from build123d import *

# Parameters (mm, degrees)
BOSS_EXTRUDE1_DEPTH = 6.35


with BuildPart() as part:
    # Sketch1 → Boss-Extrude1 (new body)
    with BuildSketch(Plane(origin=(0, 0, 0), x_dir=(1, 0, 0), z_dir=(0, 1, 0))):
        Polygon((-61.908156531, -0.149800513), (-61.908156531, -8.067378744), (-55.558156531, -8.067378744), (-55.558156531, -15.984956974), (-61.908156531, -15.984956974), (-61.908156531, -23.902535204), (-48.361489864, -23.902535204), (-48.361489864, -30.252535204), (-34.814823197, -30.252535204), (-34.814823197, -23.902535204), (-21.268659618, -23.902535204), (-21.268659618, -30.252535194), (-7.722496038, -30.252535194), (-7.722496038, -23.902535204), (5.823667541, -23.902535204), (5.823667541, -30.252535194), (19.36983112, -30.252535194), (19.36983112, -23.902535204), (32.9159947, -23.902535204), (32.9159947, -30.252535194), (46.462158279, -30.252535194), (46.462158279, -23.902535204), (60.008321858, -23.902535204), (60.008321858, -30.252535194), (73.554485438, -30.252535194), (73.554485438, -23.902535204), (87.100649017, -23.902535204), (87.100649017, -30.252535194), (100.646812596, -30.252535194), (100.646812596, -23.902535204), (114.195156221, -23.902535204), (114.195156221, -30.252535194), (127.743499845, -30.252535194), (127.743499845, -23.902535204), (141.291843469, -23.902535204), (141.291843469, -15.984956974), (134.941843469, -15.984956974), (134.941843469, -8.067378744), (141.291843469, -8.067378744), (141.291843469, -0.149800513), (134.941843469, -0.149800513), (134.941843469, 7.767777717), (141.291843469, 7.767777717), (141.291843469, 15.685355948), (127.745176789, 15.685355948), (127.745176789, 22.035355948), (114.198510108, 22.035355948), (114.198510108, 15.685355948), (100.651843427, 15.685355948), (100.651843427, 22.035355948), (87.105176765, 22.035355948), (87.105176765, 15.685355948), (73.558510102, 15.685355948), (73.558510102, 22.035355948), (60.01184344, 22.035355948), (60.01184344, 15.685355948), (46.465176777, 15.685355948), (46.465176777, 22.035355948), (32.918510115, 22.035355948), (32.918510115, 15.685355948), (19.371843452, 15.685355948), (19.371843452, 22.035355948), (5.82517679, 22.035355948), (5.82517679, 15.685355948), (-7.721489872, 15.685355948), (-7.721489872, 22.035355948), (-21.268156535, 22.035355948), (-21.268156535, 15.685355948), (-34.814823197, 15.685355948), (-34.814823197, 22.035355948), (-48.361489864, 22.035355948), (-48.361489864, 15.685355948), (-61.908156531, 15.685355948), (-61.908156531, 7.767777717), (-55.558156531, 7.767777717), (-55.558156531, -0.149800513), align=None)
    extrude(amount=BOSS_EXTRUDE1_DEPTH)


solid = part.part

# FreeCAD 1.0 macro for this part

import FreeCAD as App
import Part
import Sketcher

V = App.Vector
Q = App.Units.Quantity


def add_polygon(sketch, points):
    """Adds a closed chain of lines whose ends are joined by coincident constraints."""
    first, n = sketch.GeometryCount, len(points)
    for a, b in zip(points, points[1:] + points[:1]):
        sketch.addGeometry(Part.LineSegment(App.Vector(*a, 0), App.Vector(*b, 0)), False)
    for i in range(n):
        sketch.addConstraint(Sketcher.Constraint("Coincident", first + i, 2, first + (i + 1) % n, 1))

doc = App.newDocument("Part")
body = doc.addObject("PartDesign::Body", "Body")

# Sketch on XZ plane
sketch1 = doc.addObject("Sketcher::SketchObject", "Sketch")
body.addObject(sketch1)
sketch1.AttachmentSupport = (doc.XZ_Plane, [""])
sketch1.MapMode = "FlatFace"
add_polygon(sketch1, [(-62, 0), (-62, 8), (-56, 8), (-56, 16), (-62, 16), (-62, 24), (-48, 24), (-48, 30), (-35, 30), (-35, 24), (-21, 24), (-21, 30), (-8, 30), (-8, 24), (6, 24), (6, 30), (19, 30), (19, 24), (33, 24), (33, 30), (46, 30), (46, 24), (60, 24), (60, 30), (74, 30), (74, 24), (87, 24), (87, 30), (101, 30), (101, 24), (114, 24), (114, 30), (128, 30), (128, 24), (141, 24), (141, 16), (135, 16), (135, 8), (141, 8), (141, 0), (135, 0), (135, -8), (141, -8), (141, -16), (128, -16), (128, -22), (114, -22), (114, -16), (101, -16), (101, -22), (87, -22), (87, -16), (74, -16), (74, -22), (60, -22), (60, -16), (46, -16), (46, -22), (33, -22), (33, -16), (19, -16), (19, -22), (6, -22), (6, -16), (-8, -16), (-8, -22), (-21, -22), (-21, -16), (-35, -16), (-35, -22), (-48, -22), (-48, -16), (-62, -16), (-62, -8), (-56, -8), (-56, 0)])  # lines 0-75
sketch1.addConstraint([
    Sketcher.Constraint("Vertical", 0),
    Sketcher.Constraint("Horizontal", 1),
    Sketcher.Constraint("Vertical", 2),
    Sketcher.Constraint("Horizontal", 3),
    Sketcher.Constraint("Vertical", 4),
    Sketcher.Constraint("Horizontal", 5),
    Sketcher.Constraint("Vertical", 6),
    Sketcher.Constraint("Horizontal", 7),
    Sketcher.Constraint("Vertical", 8),
    Sketcher.Constraint("Horizontal", 9),
    Sketcher.Constraint("Vertical", 10),
    Sketcher.Constraint("Horizontal", 11),
    Sketcher.Constraint("Vertical", 12),
    Sketcher.Constraint("Horizontal", 13),
    Sketcher.Constraint("Vertical", 14),
    Sketcher.Constraint("Horizontal", 15),
    Sketcher.Constraint("Vertical", 16),
    Sketcher.Constraint("Horizontal", 17),
    Sketcher.Constraint("Vertical", 18),
    Sketcher.Constraint("Horizontal", 19),
    Sketcher.Constraint("Vertical", 20),
    Sketcher.Constraint("Horizontal", 21),
    Sketcher.Constraint("Vertical", 22),
    Sketcher.Constraint("Horizontal", 23),
    Sketcher.Constraint("Vertical", 24),
    Sketcher.Constraint("Horizontal", 25),
    Sketcher.Constraint("Vertical", 26),
    Sketcher.Constraint("Horizontal", 27),
    Sketcher.Constraint("Vertical", 28),
    Sketcher.Constraint("Horizontal", 29),
    Sketcher.Constraint("Vertical", 30),
    Sketcher.Constraint("Horizontal", 31),
    Sketcher.Constraint("Vertical", 32),
    Sketcher.Constraint("Horizontal", 33),
    Sketcher.Constraint("Vertical", 34),
    Sketcher.Constraint("Horizontal", 35),
    Sketcher.Constraint("Vertical", 36),
    Sketcher.Constraint("Horizontal", 37),
    Sketcher.Constraint("Vertical", 38),
    Sketcher.Constraint("Horizontal", 39),
    Sketcher.Constraint("Vertical", 40),
    Sketcher.Constraint("Horizontal", 41),
    Sketcher.Constraint("Vertical", 42),
    Sketcher.Constraint("Horizontal", 43),
    Sketcher.Constraint("Vertical", 44),
    Sketcher.Constraint("Horizontal", 45),
    Sketcher.Constraint("Vertical", 46),
    Sketcher.Constraint("Horizontal", 47),
    Sketcher.Constraint("Vertical", 48),
    Sketcher.Constraint("Horizontal", 49),
    Sketcher.Constraint("Vertical", 50),
    Sketcher.Constraint("Horizontal", 51),
    Sketcher.Constraint("Vertical", 52),
    Sketcher.Constraint("Horizontal", 53),
    Sketcher.Constraint("Vertical", 54),
    Sketcher.Constraint("Horizontal", 55),
    Sketcher.Constraint("Vertical", 56),
    Sketcher.Constraint("Horizontal", 57),
    Sketcher.Constraint("Vertical", 58),
    Sketcher.Constraint("Horizontal", 59),
    Sketcher.Constraint("Vertical", 60),
    Sketcher.Constraint("Horizontal", 61),
    Sketcher.Constraint("Vertical", 62),
    Sketcher.Constraint("Horizontal", 63),
    Sketcher.Constraint("Vertical", 64),
    Sketcher.Constraint("Horizontal", 65),
    Sketcher.Constraint("Vertical", 66),
    Sketcher.Constraint("Horizontal", 67),
    Sketcher.Constraint("Vertical", 68),
    Sketcher.Constraint("Horizontal", 69),
    Sketcher.Constraint("Vertical", 70),
    Sketcher.Constraint("Horizontal", 71),
    Sketcher.Constraint("Vertical", 72),
    Sketcher.Constraint("Horizontal", 73),
    Sketcher.Constraint("Vertical", 74),
    Sketcher.Constraint("Horizontal", 75),
    Sketcher.Constraint("Horizontal", 5, 2, 8, 2),
    Sketcher.Constraint("Horizontal", 7, 2, 10, 2),
    Sketcher.Constraint("Horizontal", 9, 2, 12, 2),
    Sketcher.Constraint("Horizontal", 11, 2, 14, 2),
    Sketcher.Constraint("Horizontal", 13, 2, 16, 2),
    Sketcher.Constraint("Horizontal", 15, 2, 18, 2),
    Sketcher.Constraint("Horizontal", 17, 2, 20, 2),
    Sketcher.Constraint("Horizontal", 19, 2, 22, 2),
    Sketcher.Constraint("Horizontal", 21, 2, 24, 2),
    Sketcher.Constraint("Horizontal", 23, 2, 26, 2),
    Sketcher.Constraint("Horizontal", 25, 2, 28, 2),
    Sketcher.Constraint("Horizontal", 27, 2, 30, 2),
    Sketcher.Constraint("Horizontal", 29, 2, 32, 2),
    Sketcher.Constraint("Horizontal", 3, 2, 34, 2),
    Sketcher.Constraint("Horizontal", 1, 2, 36, 2),
    Sketcher.Constraint("Horizontal", 43, 2, 46, 2),
    Sketcher.Constraint("Horizontal", 45, 2, 48, 2),
    Sketcher.Constraint("Horizontal", 47, 2, 50, 2),
    Sketcher.Constraint("Horizontal", 49, 2, 52, 2),
    Sketcher.Constraint("Horizontal", 51, 2, 54, 2),
    Sketcher.Constraint("Horizontal", 53, 2, 56, 2),
    Sketcher.Constraint("Horizontal", 55, 2, 58, 2),
    Sketcher.Constraint("Horizontal", 57, 2, 60, 2),
    Sketcher.Constraint("Horizontal", 59, 2, 62, 2),
    Sketcher.Constraint("Horizontal", 61, 2, 64, 2),
    Sketcher.Constraint("Horizontal", 63, 2, 66, 2),
    Sketcher.Constraint("Horizontal", 65, 2, 68, 2),
    Sketcher.Constraint("Horizontal", 67, 2, 70, 2),
    Sketcher.Constraint("Horizontal", 41, 2, 72, 2),
    Sketcher.Constraint("Horizontal", 39, 2, 74, 2),
    Sketcher.Constraint("Vertical", 0, 2, 3, 2),
    Sketcher.Constraint("Vertical", 34, 2, 37, 2),
    Sketcher.Constraint("Vertical", 36, 2, 39, 2),
    Sketcher.Constraint("Vertical", 38, 2, 41, 2),
    Sketcher.Constraint("Vertical", 8, 2, 67, 2),
    Sketcher.Constraint("Vertical", 6, 2, 69, 2),
    Sketcher.Constraint("Vertical", 4, 2, 71, 2),
    Sketcher.Constraint("Vertical", 2, 2, 73, 2),
    Sketcher.Constraint("Equal", 5, 7),
    Sketcher.Constraint("Equal", 9, 11),
    Sketcher.Constraint("Equal", 11, 13),
    Sketcher.Constraint("Equal", 13, 15),
    Sketcher.Constraint("Equal", 15, 17),
    Sketcher.Constraint("Equal", 17, 19),
    Sketcher.Constraint("Equal", 19, 21),
    Sketcher.Constraint("Equal", 21, 23),
    Sketcher.Constraint("Equal", 23, 25),
    Sketcher.Constraint("Equal", 25, 27),
    Sketcher.Constraint("Equal", 29, 31),
    Sketcher.Constraint("Equal", 31, 33),
    Sketcher.Constraint("Equal", 3, 35),
    Sketcher.Constraint("Equal", 7, 43),
    Sketcher.Constraint("Equal", 43, 45),
    Sketcher.Constraint("Equal", 45, 47),
    Sketcher.Constraint("Equal", 47, 49),
    Sketcher.Constraint("Equal", 49, 51),
    Sketcher.Constraint("Equal", 51, 53),
    Sketcher.Constraint("Equal", 53, 55),
    Sketcher.Constraint("Equal", 55, 57),
    Sketcher.Constraint("Equal", 57, 59),
    Sketcher.Constraint("Equal", 59, 61),
    Sketcher.Constraint("Equal", 61, 63),
    Sketcher.Constraint("Equal", 63, 65),
    Sketcher.Constraint("Equal", 65, 67),
    Sketcher.Constraint("Equal", 0, 2),
    Sketcher.Constraint("Equal", 2, 4),
    Sketcher.Constraint("Equal", 75, 6),
    Sketcher.Constraint("Equal", 38, 40),
    Sketcher.Constraint("Equal", 40, 42),
    Sketcher.Constraint("Equal", 32, 44),
    Sketcher.Constraint("DistanceX", 1, 1, 1, 2, Q("0.25 in")),
    Sketcher.Constraint("DistanceY", 0, 1, 0, 2, 7.917578),
    Sketcher.Constraint("DistanceX", -1, 1, 31, 2, 127.7435),
    Sketcher.Constraint("DistanceY", -1, 1, 38, 2, 0.149801),
    Sketcher.Constraint("DistanceX", 5, 1, 5, 2, 13.546667),
    Sketcher.Constraint("DistanceX", 9, 1, 9, 2, 13.546164),
])
pad1 = doc.addObject("PartDesign::Pad", "Pad")
body.addObject(pad1)
pad1.Profile = sketch1
pad1.Length = Q("0.25 in")
pad1.Reversed = True

doc.recompute()
